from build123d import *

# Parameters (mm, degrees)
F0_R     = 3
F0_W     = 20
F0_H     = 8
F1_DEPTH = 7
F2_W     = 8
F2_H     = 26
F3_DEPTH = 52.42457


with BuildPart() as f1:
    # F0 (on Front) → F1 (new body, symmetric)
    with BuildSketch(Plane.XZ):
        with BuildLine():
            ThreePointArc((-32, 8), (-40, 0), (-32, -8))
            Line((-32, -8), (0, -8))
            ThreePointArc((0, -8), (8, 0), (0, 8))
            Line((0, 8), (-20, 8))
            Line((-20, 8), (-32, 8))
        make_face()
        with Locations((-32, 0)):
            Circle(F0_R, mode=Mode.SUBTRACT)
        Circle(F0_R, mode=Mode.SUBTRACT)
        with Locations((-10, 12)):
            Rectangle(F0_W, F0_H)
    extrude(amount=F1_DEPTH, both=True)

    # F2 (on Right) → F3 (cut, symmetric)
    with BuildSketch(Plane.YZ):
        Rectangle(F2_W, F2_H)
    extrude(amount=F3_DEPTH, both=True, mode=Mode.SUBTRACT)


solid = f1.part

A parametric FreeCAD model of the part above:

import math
import FreeCAD as App
import Part
import Sketcher
Q = App.Units.Quantity


def add_polygon(sketch, points):
    """Adds a closed chain of lines whose ends are joined by coincident constraints."""
    first, n = sketch.GeometryCount, len(points)
    for a, b in zip(points, points[1:] + points[:1]):
        sketch.addGeometry(Part.LineSegment(App.Vector(*a, 0), App.Vector(*b, 0)), False)
    for i in range(n):
        sketch.addConstraint(Sketcher.Constraint("Coincident", first + i, 2, first + (i + 1) % n, 1))

doc = App.newDocument("Part")
body = doc.addObject("PartDesign::Body", "Body")

sketch1 = body.newObject("Sketcher::SketchObject", "Sketch")
sketch1.AttachmentSupport = (doc.getObject("XZ_Plane"), [""])
sketch1.MapMode = "FlatFace"
sketch1.addGeometry(Part.ArcOfCircle(Part.Circle(App.Vector(-32, 0, 0), App.Vector(0, 0, 1), 8), math.radians(90), math.radians(270)), False)
sketch1.addGeometry(Part.LineSegment(App.Vector(-32, -8, 0), App.Vector(0, -8, 0)), False)
sketch1.addGeometry(Part.ArcOfCircle(Part.Circle(App.Vector(0, 0, 0), App.Vector(0, 0, 1), 8), math.radians(-90), math.radians(90)), False)
sketch1.addGeometry(Part.LineSegment(App.Vector(0, 8, 0), App.Vector(0, 16, 0)), False)
sketch1.addGeometry(Part.LineSegment(App.Vector(0, 16, 0), App.Vector(-20, 16, 0)), False)
sketch1.addGeometry(Part.LineSegment(App.Vector(-20, 16, 0), App.Vector(-20, 8, 0)), False)
sketch1.addGeometry(Part.LineSegment(App.Vector(-20, 8, 0), App.Vector(-32, 8, 0)), False)
sketch1.addGeometry(Part.Circle(App.Vector(-32, 0, 0), App.Vector(0, 0, 1), 3), False)
sketch1.addGeometry(Part.Circle(App.Vector(0, 0, 0), App.Vector(0, 0, 1), 3), False)
sketch1.addConstraint(Sketcher.Constraint("Tangent", 0, 2, 1, 1))
sketch1.addConstraint(Sketcher.Constraint("Tangent", 1, 2, 2, 1))
sketch1.addConstraint(Sketcher.Constraint("Coincident", 2, 2, 3, 1))
sketch1.addConstraint(Sketcher.Constraint("Coincident", 3, 2, 4, 1))
sketch1.addConstraint(Sketcher.Constraint("Coincident", 4, 2, 5, 1))
sketch1.addConstraint(Sketcher.Constraint("Coincident", 5, 2, 6, 1))
sketch1.addConstraint(Sketcher.Constraint("Tangent", 6, 2, 0, 1))
sketch1.addConstraint(Sketcher.Constraint("Horizontal", 1))
sketch1.addConstraint(Sketcher.Constraint("Vertical", 3))
sketch1.addConstraint(Sketcher.Constraint("Horizontal", 4))
sketch1.addConstraint(Sketcher.Constraint("Vertical", 5))
sketch1.addConstraint(Sketcher.Constraint("Horizontal", 6))
sketch1.addConstraint(Sketcher.Constraint("Coincident", 2, 3, -1, 1))
sketch1.addConstraint(Sketcher.Constraint("Coincident", 8, 3, -1, 1))
sketch1.addConstraint(Sketcher.Constraint("Coincident", 7, 3, 0, 3))
sketch1.addConstraint(Sketcher.Constraint("Equal", 0, 2))
sketch1.addConstraint(Sketcher.Constraint("Equal", 7, 8))
sketch1.addConstraint(Sketcher.Constraint("PointOnObject", 2, 2, -2))
sketch1.addConstraint(Sketcher.Constraint("Diameter", 7, Q("6 mm")))
sketch1.addConstraint(Sketcher.Constraint("Radius", 0, Q("8 mm")))
sketch1.addConstraint(Sketcher.Constraint("DistanceX", 1, 1, 1, 2, Q("32 mm")))
sketch1.addConstraint(Sketcher.Constraint("DistanceX", 4, 2, 4, 1, Q("20 mm")))
sketch1.addConstraint(Sketcher.Constraint("DistanceY", 3, 1, 3, 2, Q("8 mm")))
pad1 = body.newObject("PartDesign::Pad", "Pad")
pad1.Profile = sketch1
pad1.Length = 14
pad1.Midplane = True

sketch2 = body.newObject("Sketcher::SketchObject", "Sketch001")
sketch2.AttachmentSupport = (doc.getObject("YZ_Plane"), [""])
sketch2.MapMode = "FlatFace"
add_polygon(sketch2, [(-4, 13), (-4, -13), (4, -13), (4, 13)])
sketch2.addConstraint(Sketcher.Constraint("Vertical", 0))
sketch2.addConstraint(Sketcher.Constraint("Horizontal", 1))
sketch2.addConstraint(Sketcher.Constraint("Vertical", 2))
sketch2.addConstraint(Sketcher.Constraint("Horizontal", 3))
sketch2.addConstraint(Sketcher.Constraint("Symmetric", 0, 2, 2, 2, -1, 1))
sketch2.addConstraint(Sketcher.Constraint("DistanceX", 1, 1, 1, 2, Q("8 mm")))
sketch2.addConstraint(Sketcher.Constraint("DistanceY", 0, 2, 0, 1, Q("26 mm")))
pocket1 = body.newObject("PartDesign::Pocket", "Pocket")
pocket1.Profile = sketch2
pocket1.Length = 104.84914
pocket1.Midplane = True

doc.recompute()
